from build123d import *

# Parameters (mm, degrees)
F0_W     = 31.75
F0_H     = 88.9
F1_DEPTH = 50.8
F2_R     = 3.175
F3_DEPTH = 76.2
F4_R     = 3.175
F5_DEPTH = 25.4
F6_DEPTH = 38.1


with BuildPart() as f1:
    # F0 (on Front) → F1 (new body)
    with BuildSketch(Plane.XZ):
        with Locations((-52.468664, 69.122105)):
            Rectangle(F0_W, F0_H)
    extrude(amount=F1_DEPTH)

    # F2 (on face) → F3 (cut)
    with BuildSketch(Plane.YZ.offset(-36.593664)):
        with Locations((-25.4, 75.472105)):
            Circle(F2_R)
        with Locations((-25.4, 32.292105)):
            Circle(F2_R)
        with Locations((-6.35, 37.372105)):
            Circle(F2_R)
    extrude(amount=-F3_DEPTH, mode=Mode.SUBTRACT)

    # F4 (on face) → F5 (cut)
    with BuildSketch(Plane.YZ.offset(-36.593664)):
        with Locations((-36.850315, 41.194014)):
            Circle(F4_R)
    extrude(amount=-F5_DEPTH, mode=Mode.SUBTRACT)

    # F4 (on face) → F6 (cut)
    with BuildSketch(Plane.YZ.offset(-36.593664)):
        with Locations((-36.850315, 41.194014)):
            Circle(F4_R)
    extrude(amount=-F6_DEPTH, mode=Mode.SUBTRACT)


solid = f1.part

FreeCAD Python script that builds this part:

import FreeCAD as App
import Part
import Sketcher

V = App.Vector
Q = App.Units.Quantity

doc = App.newDocument("Part")
params = doc.addObject("Spreadsheet::Sheet", "Params")
for row, (alias, value) in enumerate([
    ("sketch1_height", "3.5 in"),
    ("sketch1_width", "1.25 in"),
    ("pad1_length", "2 in"),
    ("sketch2_diameter", "0.25 in"),
    ("pocket1_length", "3 in"),
    ("sketch3_diameter", "0.25 in"),
    ("pocket2_length", "1 in"),
    ("sketch4_diameter", "0.25 in"),
    ("pocket3_length", "1.5 in"),
], start=1):
    params.set(f"A{row}", alias)
    params.set(f"B{row}", "=" + value)
    params.setAlias(f"B{row}", alias)

body = doc.addObject("PartDesign::Body", "Body")

sketch1 = doc.addObject("Sketcher::SketchObject", "Sketch")
body.addObject(sketch1)
sketch1.AttachmentSupport = (doc.XZ_Plane, [""])
sketch1.MapMode = "FlatFace"
sketch1.addGeometry(Part.LineSegment(V(-68.343664, 113.572105, 0), V(-68.343664, 24.672105, 0)), False)
sketch1.addGeometry(Part.LineSegment(V(-68.343664, 24.672105, 0), V(-36.593664, 24.672105, 0)), False)
sketch1.addGeometry(Part.LineSegment(V(-36.593664, 24.672105, 0), V(-36.593664, 113.572105, 0)), False)
sketch1.addGeometry(Part.LineSegment(V(-36.593664, 113.572105, 0), V(-68.343664, 113.572105, 0)), False)
sketch1.addConstraint(Sketcher.Constraint("Coincident", 0, 2, 1, 1))
sketch1.addConstraint(Sketcher.Constraint("Coincident", 1, 2, 2, 1))
sketch1.addConstraint(Sketcher.Constraint("Coincident", 2, 2, 3, 1))
sketch1.addConstraint(Sketcher.Constraint("Coincident", 3, 2, 0, 1))
sketch1.addConstraint(Sketcher.Constraint("Vertical", 0))
sketch1.addConstraint(Sketcher.Constraint("Horizontal", 1))
sketch1.addConstraint(Sketcher.Constraint("Vertical", 2))
sketch1.addConstraint(Sketcher.Constraint("Horizontal", 3))
sketch1.addConstraint(Sketcher.Constraint("DistanceY", 0, 2, 0, 1, Q("3.5 in")))
sketch1.addConstraint(Sketcher.Constraint("DistanceX", 1, 1, 1, 2, Q("1.25 in")))
sketch1.addConstraint(Sketcher.Constraint("DistanceX", 0, 2, -1, 1, 68.343664))
sketch1.addConstraint(Sketcher.Constraint("DistanceY", -1, 1, 0, 2, 24.672105))
sketch1.setExpression("Constraints[8]", "Params.sketch1_height")
sketch1.setExpression("Constraints[9]", "Params.sketch1_width")
pad1 = doc.addObject("PartDesign::Pad", "Pad")
body.addObject(pad1)
pad1.Profile = sketch1
pad1.setExpression("Length", "Params.pad1_length")

sketch2 = doc.addObject("Sketcher::SketchObject", "Sketch001")
body.addObject(sketch2)
sketch2.AttachmentSupport = (doc.YZ_Plane, [""])
sketch2.MapMode = "FlatFace"
sketch2.AttachmentOffset = App.Placement(V(0, 0, -36.593664), App.Rotation())
sketch2.addGeometry(Part.Circle(V(-25.4, 75.472105, 0), V(0, 0, 1), 3.175), False)
sketch2.addGeometry(Part.Circle(V(-25.4, 32.292105, 0), V(0, 0, 1), 3.175), False)
sketch2.addGeometry(Part.Circle(V(-6.35, 37.372105, 0), V(0, 0, 1), 3.175), False)
sketch2.addConstraint(Sketcher.Constraint("Equal", 0, 1))
sketch2.addConstraint(Sketcher.Constraint("Equal", 1, 2))
sketch2.addConstraint(Sketcher.Constraint("Vertical", 0, 3, 1, 3))
sketch2.addConstraint(Sketcher.Constraint("Diameter", 0, Q("0.25 in")))
sketch2.addConstraint(Sketcher.Constraint("DistanceX", 0, 3, -1, 1, Q("1 in")))
sketch2.addConstraint(Sketcher.Constraint("DistanceY", 1, 3, 0, 3, Q("1.7 in")))
sketch2.addConstraint(Sketcher.Constraint("DistanceY", 1, 3, 2, 3, Q("0.2 in")))
sketch2.addConstraint(Sketcher.Constraint("DistanceX", 2, 3, -1, 1, Q("0.25 in")))
sketch2.addConstraint(Sketcher.Constraint("DistanceY", -1, 1, 0, 3, 75.472105))
sketch2.setExpression("Constraints[3]", "Params.sketch2_diameter")
pocket1 = doc.addObject("PartDesign::Pocket", "Pocket")
body.addObject(pocket1)
pocket1.Profile = sketch2
pocket1.setExpression("Length", "Params.pocket1_length")

sketch3 = doc.addObject("Sketcher::SketchObject", "Sketch002")
body.addObject(sketch3)
sketch3.AttachmentSupport = (doc.YZ_Plane, [""])
sketch3.MapMode = "FlatFace"
sketch3.AttachmentOffset = App.Placement(V(0, 0, -36.593664), App.Rotation())
sketch3.addGeometry(Part.Circle(V(-36.850315, 41.194014, 0), V(0, 0, 1), 3.175), False)
sketch3.addConstraint(Sketcher.Constraint("Diameter", 0, Q("0.25 in")))
sketch3.addConstraint(Sketcher.Constraint("DistanceX", 0, 3, -1, 1, Q("1.4507998 in")))
sketch3.addConstraint(Sketcher.Constraint("DistanceY", -1, 1, 0, 3, 41.194014))
sketch3.setExpression("Constraints[0]", "Params.sketch3_diameter")
pocket2 = doc.addObject("PartDesign::Pocket", "Pocket001")
body.addObject(pocket2)
pocket2.Profile = sketch3
pocket2.setExpression("Length", "Params.pocket2_length")

sketch4 = doc.addObject("Sketcher::SketchObject", "Sketch003")
body.addObject(sketch4)
sketch4.AttachmentSupport = (doc.YZ_Plane, [""])
sketch4.MapMode = "FlatFace"
sketch4.AttachmentOffset = App.Placement(V(0, 0, -36.593664), App.Rotation())
sketch4.addGeometry(Part.Circle(V(-36.850315, 41.194014, 0), V(0, 0, 1), 3.175), False)
sketch4.addConstraint(Sketcher.Constraint("Diameter", 0, Q("0.25 in")))
sketch4.addConstraint(Sketcher.Constraint("DistanceX", 0, 3, -1, 1, Q("1.4507998 in")))
sketch4.addConstraint(Sketcher.Constraint("DistanceY", -1, 1, 0, 3, 41.194014))
sketch4.setExpression("Constraints[0]", "Params.sketch4_diameter")
pocket3 = doc.addObject("PartDesign::Pocket", "Pocket002")
body.addObject(pocket3)
pocket3.Profile = sketch4
pocket3.setExpression("Length", "Params.pocket3_length")

doc.recompute()
